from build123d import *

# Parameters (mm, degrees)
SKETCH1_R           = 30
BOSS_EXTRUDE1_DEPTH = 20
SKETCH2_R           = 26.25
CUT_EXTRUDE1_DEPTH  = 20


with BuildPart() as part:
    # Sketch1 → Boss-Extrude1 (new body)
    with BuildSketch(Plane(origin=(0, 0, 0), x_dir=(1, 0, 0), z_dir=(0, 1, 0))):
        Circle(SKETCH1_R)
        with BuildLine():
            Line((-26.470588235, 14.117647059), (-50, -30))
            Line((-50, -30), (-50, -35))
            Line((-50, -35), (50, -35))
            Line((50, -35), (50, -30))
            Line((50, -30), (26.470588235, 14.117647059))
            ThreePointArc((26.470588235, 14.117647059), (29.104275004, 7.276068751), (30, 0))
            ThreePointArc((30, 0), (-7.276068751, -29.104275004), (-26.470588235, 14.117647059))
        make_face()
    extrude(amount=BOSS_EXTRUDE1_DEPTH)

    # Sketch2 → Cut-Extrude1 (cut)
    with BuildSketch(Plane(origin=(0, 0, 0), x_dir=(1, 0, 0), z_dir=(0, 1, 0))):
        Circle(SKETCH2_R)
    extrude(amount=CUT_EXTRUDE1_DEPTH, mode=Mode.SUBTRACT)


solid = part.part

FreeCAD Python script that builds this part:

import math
import FreeCAD as App
import Part
import Sketcher
from FreeCAD import Vector
Q = App.Units.Quantity

doc = App.newDocument("Part")
body = doc.addObject("PartDesign::Body", "Body")

sketch1 = body.newObject("Sketcher::SketchObject", "Sketch")
sketch1.AttachmentSupport = (doc.getObject("XZ_Plane"), [""])
sketch1.MapMode = "FlatFace"
sketch1.addGeometry(Part.ArcOfCircle(Part.Circle(Vector(0, 0, 0), Vector(0, 0, 1), 30), math.radians(-152), math.radians(-28)), False)
sketch1.addGeometry(Part.LineSegment(Vector(-26, -14, 0), Vector(-50, 30, 0)), False)
sketch1.addGeometry(Part.LineSegment(Vector(-50, 30, 0), Vector(-50, 35, 0)), False)
sketch1.addGeometry(Part.LineSegment(Vector(-50, 35, 0), Vector(50, 35, 0)), False)
sketch1.addGeometry(Part.LineSegment(Vector(50, 35, 0), Vector(50, 30, 0)), False)
sketch1.addGeometry(Part.LineSegment(Vector(50, 30, 0), Vector(26, -14, 0)), False)
sketch1.addConstraint(Sketcher.Constraint("Tangent", 0, 1, 1, 1))
sketch1.addConstraint(Sketcher.Constraint("Coincident", 1, 2, 2, 1))
sketch1.addConstraint(Sketcher.Constraint("Coincident", 2, 2, 3, 1))
sketch1.addConstraint(Sketcher.Constraint("Coincident", 3, 2, 4, 1))
sketch1.addConstraint(Sketcher.Constraint("Coincident", 4, 2, 5, 1))
sketch1.addConstraint(Sketcher.Constraint("Tangent", 5, 2, 0, 2))
sketch1.addConstraint(Sketcher.Constraint("Vertical", 2))
sketch1.addConstraint(Sketcher.Constraint("Horizontal", 3))
sketch1.addConstraint(Sketcher.Constraint("Vertical", 4))
sketch1.addConstraint(Sketcher.Constraint("Coincident", 0, 3, -1, 1))
sketch1.addConstraint(Sketcher.Constraint("Symmetric", 1, 2, 4, 2, -2))
sketch1.addConstraint(Sketcher.Constraint("Radius", 0, Q("30 mm")))
sketch1.addConstraint(Sketcher.Constraint("DistanceX", 3, 1, 3, 2, Q("100 mm")))
sketch1.addConstraint(Sketcher.Constraint("DistanceY", 2, 1, 2, 2, Q("5 mm")))
sketch1.addConstraint(Sketcher.Constraint("Distance", 1, Q("50 mm")))
pad1 = body.newObject("PartDesign::Pad", "Pad")
pad1.Profile = sketch1
pad1.Length = 20
pad1.Reversed = True

sketch2 = body.newObject("Sketcher::SketchObject", "Sketch001")
sketch2.AttachmentSupport = (doc.getObject("XZ_Plane"), [""])
sketch2.MapMode = "FlatFace"
sketch2.addGeometry(Part.Circle(Vector(0, 0, 0), Vector(0, 0, 1), 26), False)
sketch2.addConstraint(Sketcher.Constraint("Coincident", 0, 3, -1, 1))
sketch2.addConstraint(Sketcher.Constraint("Diameter", 0, Q("52.5 mm")))
pocket1 = body.newObject("PartDesign::Pocket", "Pocket")
pocket1.Profile = sketch2
pocket1.Length = 20

doc.recompute()
